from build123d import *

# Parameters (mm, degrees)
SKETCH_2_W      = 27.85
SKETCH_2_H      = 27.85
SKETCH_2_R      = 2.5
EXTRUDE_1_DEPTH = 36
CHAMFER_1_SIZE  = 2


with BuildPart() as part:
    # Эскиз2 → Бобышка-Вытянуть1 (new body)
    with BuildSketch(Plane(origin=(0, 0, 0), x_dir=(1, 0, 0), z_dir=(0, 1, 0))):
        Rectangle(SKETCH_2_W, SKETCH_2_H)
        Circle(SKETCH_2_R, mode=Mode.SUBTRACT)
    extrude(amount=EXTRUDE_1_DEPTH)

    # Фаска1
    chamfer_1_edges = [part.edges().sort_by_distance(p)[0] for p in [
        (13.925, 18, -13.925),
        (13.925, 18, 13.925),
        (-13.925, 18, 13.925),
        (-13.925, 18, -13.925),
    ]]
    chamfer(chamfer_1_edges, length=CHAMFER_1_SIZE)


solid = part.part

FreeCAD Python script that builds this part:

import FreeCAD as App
import Part
import Sketcher

V = App.Vector
Q = App.Units.Quantity


def edges_at(feature, points):
    """Names of the edges that pass closest to the given points."""
    edges = feature.Shape.Edges
    near = lambda p: min(range(len(edges)), key=lambda i: edges[i].distToShape(Part.Vertex(*p))[0])
    return sorted({f"Edge{near(p) + 1}" for p in points})


def add_polygon(sketch, points):
    """Adds a closed chain of lines whose ends are joined by coincident constraints."""
    first, n = sketch.GeometryCount, len(points)
    for a, b in zip(points, points[1:] + points[:1]):
        sketch.addGeometry(Part.LineSegment(App.Vector(*a, 0), App.Vector(*b, 0)), False)
    for i in range(n):
        sketch.addConstraint(Sketcher.Constraint("Coincident", first + i, 2, first + (i + 1) % n, 1))

doc = App.newDocument("Part")
body = doc.addObject("PartDesign::Body", "Body")

# Sketch on XZ plane
sketch1 = doc.addObject("Sketcher::SketchObject", "Sketch")
body.addObject(sketch1)
sketch1.AttachmentSupport = (doc.XZ_Plane, [""])
sketch1.MapMode = "FlatFace"
add_polygon(sketch1, [(-13.925, -13.925), (-13.925, 13.925), (13.925, 13.925), (13.925, -13.925)])  # lines 0-3
sketch1.addGeometry(Part.Circle(V(0, 0, 0), V(0, 0, 1), 2.5), False)  # 4
sketch1.addConstraint([
    Sketcher.Constraint("Vertical", 0),
    Sketcher.Constraint("Horizontal", 1),
    Sketcher.Constraint("Vertical", 2),
    Sketcher.Constraint("Horizontal", 3),
    Sketcher.Constraint("Coincident", 4, 3, -1, 1),
    Sketcher.Constraint("Symmetric", 0, 2, 2, 2, -1, 1),
    Sketcher.Constraint("Equal", 3, 0),
    Sketcher.Constraint("Diameter", 4, Q("5 mm")),
    Sketcher.Constraint("DistanceX", 1, 1, 1, 2, Q("27.85 mm")),
])
pad1 = doc.addObject("PartDesign::Pad", "Pad")
body.addObject(pad1)
pad1.Profile = sketch1
pad1.Length = 36
pad1.Reversed = True
doc.recompute()

chamfer = doc.addObject("PartDesign::Chamfer", "Chamfer")
body.addObject(chamfer)
chamfer.Base = (pad1, edges_at(pad1, [
    (13.925, 18, -13.925),
    (13.925, 18, 13.925),
    (-13.925, 18, 13.925),
    (-13.925, 18, -13.925),
]))
chamfer.Size = 2

doc.recompute()
